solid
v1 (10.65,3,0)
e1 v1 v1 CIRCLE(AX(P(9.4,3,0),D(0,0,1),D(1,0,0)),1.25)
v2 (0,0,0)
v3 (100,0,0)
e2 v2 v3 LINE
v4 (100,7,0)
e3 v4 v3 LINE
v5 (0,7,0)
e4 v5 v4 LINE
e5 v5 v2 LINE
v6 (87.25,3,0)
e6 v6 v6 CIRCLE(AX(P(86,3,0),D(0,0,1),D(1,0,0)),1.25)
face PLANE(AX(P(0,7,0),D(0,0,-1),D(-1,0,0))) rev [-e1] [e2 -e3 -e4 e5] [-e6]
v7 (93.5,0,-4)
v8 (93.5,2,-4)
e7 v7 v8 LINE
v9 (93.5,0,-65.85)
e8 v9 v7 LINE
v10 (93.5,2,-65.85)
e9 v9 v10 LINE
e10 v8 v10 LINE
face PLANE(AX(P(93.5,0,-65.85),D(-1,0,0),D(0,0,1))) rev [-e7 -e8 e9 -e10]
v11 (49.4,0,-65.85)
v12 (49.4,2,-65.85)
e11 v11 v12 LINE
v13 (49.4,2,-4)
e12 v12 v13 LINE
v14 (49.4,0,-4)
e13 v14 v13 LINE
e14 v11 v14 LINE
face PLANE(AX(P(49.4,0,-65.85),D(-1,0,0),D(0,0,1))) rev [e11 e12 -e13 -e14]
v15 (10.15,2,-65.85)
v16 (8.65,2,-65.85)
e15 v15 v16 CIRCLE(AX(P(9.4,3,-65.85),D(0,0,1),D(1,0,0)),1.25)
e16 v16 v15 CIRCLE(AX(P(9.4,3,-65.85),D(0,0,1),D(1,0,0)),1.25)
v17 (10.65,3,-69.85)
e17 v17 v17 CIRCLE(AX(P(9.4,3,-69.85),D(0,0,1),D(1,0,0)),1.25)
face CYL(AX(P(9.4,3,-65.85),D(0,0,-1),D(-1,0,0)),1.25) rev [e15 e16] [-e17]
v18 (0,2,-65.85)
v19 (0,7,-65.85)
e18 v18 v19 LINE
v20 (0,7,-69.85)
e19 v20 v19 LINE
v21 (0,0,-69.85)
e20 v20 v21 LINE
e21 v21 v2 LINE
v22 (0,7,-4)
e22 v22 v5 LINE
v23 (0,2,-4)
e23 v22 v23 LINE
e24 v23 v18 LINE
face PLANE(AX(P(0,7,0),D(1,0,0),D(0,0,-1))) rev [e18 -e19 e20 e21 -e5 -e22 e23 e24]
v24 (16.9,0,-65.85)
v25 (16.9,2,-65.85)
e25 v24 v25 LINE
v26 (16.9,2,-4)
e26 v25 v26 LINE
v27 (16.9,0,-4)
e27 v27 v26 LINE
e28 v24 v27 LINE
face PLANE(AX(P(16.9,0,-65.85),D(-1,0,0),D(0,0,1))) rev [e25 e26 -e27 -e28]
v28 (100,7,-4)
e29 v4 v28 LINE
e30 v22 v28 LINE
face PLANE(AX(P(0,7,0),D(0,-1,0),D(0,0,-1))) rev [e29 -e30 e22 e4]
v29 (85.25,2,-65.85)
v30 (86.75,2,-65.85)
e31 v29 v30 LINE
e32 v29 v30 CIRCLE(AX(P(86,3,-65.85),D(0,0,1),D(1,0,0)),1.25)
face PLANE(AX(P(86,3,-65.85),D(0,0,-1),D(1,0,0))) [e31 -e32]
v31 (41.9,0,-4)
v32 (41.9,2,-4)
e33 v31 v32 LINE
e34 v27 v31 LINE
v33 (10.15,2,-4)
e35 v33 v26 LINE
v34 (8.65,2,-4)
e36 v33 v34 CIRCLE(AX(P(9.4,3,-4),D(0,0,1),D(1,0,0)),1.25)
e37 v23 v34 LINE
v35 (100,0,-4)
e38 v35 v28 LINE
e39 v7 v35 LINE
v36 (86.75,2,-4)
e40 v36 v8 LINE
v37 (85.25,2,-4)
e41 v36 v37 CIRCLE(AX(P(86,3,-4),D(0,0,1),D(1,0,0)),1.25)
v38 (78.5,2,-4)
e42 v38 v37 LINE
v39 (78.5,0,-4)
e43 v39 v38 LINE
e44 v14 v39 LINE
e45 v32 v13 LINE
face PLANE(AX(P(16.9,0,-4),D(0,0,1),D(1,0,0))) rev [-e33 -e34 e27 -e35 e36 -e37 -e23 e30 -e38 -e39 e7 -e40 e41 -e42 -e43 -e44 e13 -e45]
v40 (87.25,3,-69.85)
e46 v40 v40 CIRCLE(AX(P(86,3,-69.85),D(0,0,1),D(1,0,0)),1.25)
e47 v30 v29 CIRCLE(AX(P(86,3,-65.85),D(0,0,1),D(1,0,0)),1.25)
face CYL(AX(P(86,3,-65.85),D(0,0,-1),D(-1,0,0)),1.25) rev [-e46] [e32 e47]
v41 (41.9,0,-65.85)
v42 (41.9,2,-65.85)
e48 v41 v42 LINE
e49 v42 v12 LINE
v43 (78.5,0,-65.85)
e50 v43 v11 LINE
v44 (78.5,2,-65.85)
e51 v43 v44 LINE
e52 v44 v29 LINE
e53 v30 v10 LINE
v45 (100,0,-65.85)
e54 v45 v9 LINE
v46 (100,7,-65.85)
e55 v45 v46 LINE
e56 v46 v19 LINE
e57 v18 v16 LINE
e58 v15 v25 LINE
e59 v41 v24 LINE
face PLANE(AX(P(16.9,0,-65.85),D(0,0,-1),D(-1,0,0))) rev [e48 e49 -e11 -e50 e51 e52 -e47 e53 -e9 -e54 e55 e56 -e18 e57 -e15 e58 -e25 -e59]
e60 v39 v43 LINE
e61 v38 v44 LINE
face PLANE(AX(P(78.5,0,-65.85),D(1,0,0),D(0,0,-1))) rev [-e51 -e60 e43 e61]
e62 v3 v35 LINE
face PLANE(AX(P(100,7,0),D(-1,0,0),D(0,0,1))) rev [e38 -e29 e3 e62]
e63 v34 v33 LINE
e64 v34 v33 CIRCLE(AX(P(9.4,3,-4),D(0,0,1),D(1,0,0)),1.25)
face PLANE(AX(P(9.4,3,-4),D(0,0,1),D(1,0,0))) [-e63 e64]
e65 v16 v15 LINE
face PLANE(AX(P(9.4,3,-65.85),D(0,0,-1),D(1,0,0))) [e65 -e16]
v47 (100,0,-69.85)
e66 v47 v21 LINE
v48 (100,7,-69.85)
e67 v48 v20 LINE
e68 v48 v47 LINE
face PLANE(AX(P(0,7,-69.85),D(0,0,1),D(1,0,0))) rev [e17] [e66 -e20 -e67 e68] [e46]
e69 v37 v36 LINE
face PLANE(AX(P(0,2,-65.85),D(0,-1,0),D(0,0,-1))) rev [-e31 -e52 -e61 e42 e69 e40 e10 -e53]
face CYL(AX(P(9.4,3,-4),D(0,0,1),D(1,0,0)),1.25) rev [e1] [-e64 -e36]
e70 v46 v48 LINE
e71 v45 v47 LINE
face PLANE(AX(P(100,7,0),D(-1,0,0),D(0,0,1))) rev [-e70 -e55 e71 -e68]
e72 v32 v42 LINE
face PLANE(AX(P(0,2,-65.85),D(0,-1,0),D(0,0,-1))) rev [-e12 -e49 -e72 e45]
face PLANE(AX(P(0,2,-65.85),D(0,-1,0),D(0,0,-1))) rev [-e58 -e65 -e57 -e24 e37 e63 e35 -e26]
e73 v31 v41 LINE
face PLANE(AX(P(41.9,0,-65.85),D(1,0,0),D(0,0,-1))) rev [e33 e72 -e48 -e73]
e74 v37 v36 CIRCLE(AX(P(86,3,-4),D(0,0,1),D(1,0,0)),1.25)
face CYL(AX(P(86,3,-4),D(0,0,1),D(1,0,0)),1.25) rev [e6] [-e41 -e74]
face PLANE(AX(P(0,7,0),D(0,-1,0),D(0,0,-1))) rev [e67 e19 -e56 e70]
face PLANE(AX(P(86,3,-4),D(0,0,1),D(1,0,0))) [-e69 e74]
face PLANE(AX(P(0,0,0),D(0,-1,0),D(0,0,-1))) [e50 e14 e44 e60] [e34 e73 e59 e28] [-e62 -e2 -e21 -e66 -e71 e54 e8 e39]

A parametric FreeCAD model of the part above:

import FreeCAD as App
import Part
import Sketcher
from FreeCAD import Vector
Q = App.Units.Quantity

doc = App.newDocument("Part")
params = doc.addObject("Spreadsheet::Sheet", "Params")
for row, (alias, value) in enumerate([
    ("sketch1_width", "100 mm"),
    ("sketch1_height", "69.85 mm"),
    ("pad1_length", "7 mm"),
    ("sketch2_diameter", "2.5 mm"),
    ("pocket1_length", "4 mm"),
    ("sketch3_width", "25 mm"),
    ("sketch3_width2", "29.1 mm"),
    ("sketch3_width3", "6.5 mm"),
    ("sketch3_height", "61.85 mm"),
    ("sketch4_width", "5 mm"),
    ("sketch4_height", "61.85 mm"),
], start=1):
    params.set(f"A{row}", alias)
    params.set(f"B{row}", "=" + value)
    params.setAlias(f"B{row}", alias)

body = doc.addObject("PartDesign::Body", "Body")

# Sketch on XZ plane
sketch1 = body.newObject("Sketcher::SketchObject", "Sketch")
sketch1.AttachmentSupport = (doc.getObject("XZ_Plane"), [""])
sketch1.MapMode = "FlatFace"
sketch1.addGeometry(Part.LineSegment(Vector(0, -69.85, 0), Vector(0, 0, 0)), False)
sketch1.addGeometry(Part.LineSegment(Vector(0, 0, 0), Vector(100, 0, 0)), False)
sketch1.addGeometry(Part.LineSegment(Vector(100, 0, 0), Vector(100, -69.85, 0)), False)
sketch1.addGeometry(Part.LineSegment(Vector(100, -69.85, 0), Vector(0, -69.85, 0)), False)
sketch1.addConstraint(Sketcher.Constraint("Coincident", 0, 2, 1, 1))
sketch1.addConstraint(Sketcher.Constraint("Coincident", 1, 2, 2, 1))
sketch1.addConstraint(Sketcher.Constraint("Coincident", 2, 2, 3, 1))
sketch1.addConstraint(Sketcher.Constraint("Coincident", 3, 2, 0, 1))
sketch1.addConstraint(Sketcher.Constraint("Vertical", 0))
sketch1.addConstraint(Sketcher.Constraint("Horizontal", 1))
sketch1.addConstraint(Sketcher.Constraint("Vertical", 2))
sketch1.addConstraint(Sketcher.Constraint("Horizontal", 3))
sketch1.addConstraint(Sketcher.Constraint("Coincident", 0, 2, -1, 1))
sketch1.addConstraint(Sketcher.Constraint("DistanceX", 1, 1, 1, 2, Q("100 mm")))
sketch1.addConstraint(Sketcher.Constraint("DistanceY", 0, 1, 0, 2, Q("69.85 mm")))
sketch1.setExpression("Constraints[9]", "Params.sketch1_width")
sketch1.setExpression("Constraints[10]", "Params.sketch1_height")
pad1 = body.newObject("PartDesign::Pad", "Pad")
pad1.Profile = sketch1
pad1.setExpression("Length", "Params.pad1_length")
pad1.Reversed = True

# Sketch on XY plane
sketch2 = body.newObject("Sketcher::SketchObject", "Sketch001")
sketch2.AttachmentSupport = (doc.getObject("XY_Plane"), [""])
sketch2.MapMode = "FlatFace"
sketch2.addGeometry(Part.Circle(Vector(86, 3, 0), Vector(0, 0, 1), 1.25), False)
sketch2.addGeometry(Part.Circle(Vector(9.4, 3, 0), Vector(0, 0, 1), 1.25), False)
sketch2.addConstraint(Sketcher.Constraint("Equal", 0, 1))
sketch2.addConstraint(Sketcher.Constraint("Horizontal", 0, 3, 1, 3))
sketch2.addConstraint(Sketcher.Constraint("Diameter", 0, Q("2.5 mm")))
sketch2.addConstraint(Sketcher.Constraint("DistanceX", -1, 1, 0, 3, Q("86 mm")))
sketch2.addConstraint(Sketcher.Constraint("DistanceY", -1, 1, 0, 3, Q("3 mm")))
sketch2.addConstraint(Sketcher.Constraint("DistanceX", -1, 1, 1, 3, Q("9.4 mm")))
sketch2.setExpression("Constraints[2]", "Params.sketch2_diameter")
pocket1 = body.newObject("PartDesign::Pocket", "Pocket")
pocket1.Profile = sketch2
pocket1.setExpression("Length", "Params.pocket1_length")

# Sketch on XZ plane
sketch3 = body.newObject("Sketcher::SketchObject", "Sketch002")
sketch3.AttachmentSupport = (doc.getObject("XZ_Plane"), [""])
sketch3.MapMode = "FlatFace"
sketch3.AttachmentOffset = App.Placement(Vector(0, 0, -7), App.Rotation())
sketch3.addGeometry(Part.LineSegment(Vector(16.9, -65.85, 0), Vector(16.9, -4, 0)), False)
sketch3.addGeometry(Part.LineSegment(Vector(16.9, -4, 0), Vector(41.9, -4, 0)), False)
sketch3.addGeometry(Part.LineSegment(Vector(41.9, -4, 0), Vector(41.9, -65.85, 0)), False)
sketch3.addGeometry(Part.LineSegment(Vector(41.9, -65.85, 0), Vector(16.9, -65.85, 0)), False)
sketch3.addGeometry(Part.LineSegment(Vector(49.4, -65.85, 0), Vector(49.4, -4, 0)), False)
sketch3.addGeometry(Part.LineSegment(Vector(49.4, -4, 0), Vector(78.5, -4, 0)), False)
sketch3.addGeometry(Part.LineSegment(Vector(78.5, -4, 0), Vector(78.5, -65.85, 0)), False)
sketch3.addGeometry(Part.LineSegment(Vector(78.5, -65.85, 0), Vector(49.4, -65.85, 0)), False)
sketch3.addGeometry(Part.LineSegment(Vector(93.5, -65.85, 0), Vector(93.5, -4, 0)), False)
sketch3.addGeometry(Part.LineSegment(Vector(93.5, -4, 0), Vector(100, -4, 0)), False)
sketch3.addGeometry(Part.LineSegment(Vector(100, -4, 0), Vector(100, -65.85, 0)), False)
sketch3.addGeometry(Part.LineSegment(Vector(100, -65.85, 0), Vector(93.5, -65.85, 0)), False)
sketch3.addConstraint(Sketcher.Constraint("Coincident", 0, 2, 1, 1))
sketch3.addConstraint(Sketcher.Constraint("Coincident", 1, 2, 2, 1))
sketch3.addConstraint(Sketcher.Constraint("Coincident", 2, 2, 3, 1))
sketch3.addConstraint(Sketcher.Constraint("Coincident", 3, 2, 0, 1))
sketch3.addConstraint(Sketcher.Constraint("Coincident", 4, 2, 5, 1))
sketch3.addConstraint(Sketcher.Constraint("Coincident", 5, 2, 6, 1))
sketch3.addConstraint(Sketcher.Constraint("Coincident", 6, 2, 7, 1))
sketch3.addConstraint(Sketcher.Constraint("Coincident", 7, 2, 4, 1))
sketch3.addConstraint(Sketcher.Constraint("Coincident", 8, 2, 9, 1))
sketch3.addConstraint(Sketcher.Constraint("Coincident", 9, 2, 10, 1))
sketch3.addConstraint(Sketcher.Constraint("Coincident", 10, 2, 11, 1))
sketch3.addConstraint(Sketcher.Constraint("Coincident", 11, 2, 8, 1))
sketch3.addConstraint(Sketcher.Constraint("Vertical", 0))
sketch3.addConstraint(Sketcher.Constraint("Horizontal", 1))
sketch3.addConstraint(Sketcher.Constraint("Vertical", 2))
sketch3.addConstraint(Sketcher.Constraint("Horizontal", 3))
sketch3.addConstraint(Sketcher.Constraint("Vertical", 4))
sketch3.addConstraint(Sketcher.Constraint("Horizontal", 5))
sketch3.addConstraint(Sketcher.Constraint("Vertical", 6))
sketch3.addConstraint(Sketcher.Constraint("Horizontal", 7))
sketch3.addConstraint(Sketcher.Constraint("Vertical", 8))
sketch3.addConstraint(Sketcher.Constraint("Horizontal", 9))
sketch3.addConstraint(Sketcher.Constraint("Vertical", 10))
sketch3.addConstraint(Sketcher.Constraint("Horizontal", 11))
sketch3.addConstraint(Sketcher.Constraint("Horizontal", 1, 2, 4, 2))
sketch3.addConstraint(Sketcher.Constraint("Horizontal", 3, 2, 6, 2))
sketch3.addConstraint(Sketcher.Constraint("Horizontal", 5, 2, 8, 2))
sketch3.addConstraint(Sketcher.Constraint("Horizontal", 7, 2, 10, 2))
sketch3.addConstraint(Sketcher.Constraint("DistanceX", 1, 1, 1, 2, Q("25 mm")))
sketch3.addConstraint(Sketcher.Constraint("DistanceX", 5, 1, 5, 2, Q("29.1 mm")))
sketch3.addConstraint(Sketcher.Constraint("DistanceX", 9, 1, 9, 2, Q("6.5 mm")))
sketch3.addConstraint(Sketcher.Constraint("DistanceY", 0, 2, -1, 1, Q("4 mm")))
sketch3.addConstraint(Sketcher.Constraint("DistanceX", -1, 1, 9, 2, Q("100 mm")))
sketch3.addConstraint(Sketcher.Constraint("DistanceX", 5, 2, 8, 2, Q("15 mm")))
sketch3.addConstraint(Sketcher.Constraint("DistanceY", 0, 1, 0, 2, Q("61.85 mm")))
sketch3.addConstraint(Sketcher.Constraint("DistanceX", -1, 1, 0, 2, Q("16.9 mm")))
sketch3.setExpression("Constraints[28]", "Params.sketch3_width")
sketch3.setExpression("Constraints[29]", "Params.sketch3_width2")
sketch3.setExpression("Constraints[30]", "Params.sketch3_width3")
sketch3.setExpression("Constraints[34]", "Params.sketch3_height")
pocket2 = body.newObject("PartDesign::Pocket", "Pocket001")
pocket2.Profile = sketch3
pocket2.Type = "ThroughAll"
pocket2.Reversed = True

# Sketch on YZ plane
sketch4 = body.newObject("Sketcher::SketchObject", "Sketch003")
sketch4.AttachmentSupport = (doc.getObject("YZ_Plane"), [""])
sketch4.MapMode = "FlatFace"
sketch4.AttachmentOffset = App.Placement(Vector(0, 0, 93.5), App.Rotation())
sketch4.addGeometry(Part.LineSegment(Vector(7, -4, 0), Vector(2, -4, 0)), False)
sketch4.addGeometry(Part.LineSegment(Vector(2, -4, 0), Vector(2, -65.85, 0)), False)
sketch4.addGeometry(Part.LineSegment(Vector(2, -65.85, 0), Vector(7, -65.85, 0)), False)
sketch4.addGeometry(Part.LineSegment(Vector(7, -65.85, 0), Vector(7, -4, 0)), False)
sketch4.addConstraint(Sketcher.Constraint("Coincident", 0, 2, 1, 1))
sketch4.addConstraint(Sketcher.Constraint("Coincident", 1, 2, 2, 1))
sketch4.addConstraint(Sketcher.Constraint("Coincident", 2, 2, 3, 1))
sketch4.addConstraint(Sketcher.Constraint("Coincident", 3, 2, 0, 1))
sketch4.addConstraint(Sketcher.Constraint("Horizontal", 0))
sketch4.addConstraint(Sketcher.Constraint("Vertical", 1))
sketch4.addConstraint(Sketcher.Constraint("Horizontal", 2))
sketch4.addConstraint(Sketcher.Constraint("Vertical", 3))
sketch4.addConstraint(Sketcher.Constraint("DistanceX", 0, 2, 0, 1, Q("5 mm")))
sketch4.addConstraint(Sketcher.Constraint("DistanceX", -1, 1, 0, 2, Q("2 mm")))
sketch4.addConstraint(Sketcher.Constraint("DistanceY", 0, 2, -1, 1, Q("4 mm")))
sketch4.addConstraint(Sketcher.Constraint("DistanceY", 1, 2, 1, 1, Q("61.85 mm")))
sketch4.setExpression("Constraints[8]", "Params.sketch4_width")
sketch4.setExpression("Constraints[11]", "Params.sketch4_height")
pocket3 = body.newObject("PartDesign::Pocket", "Pocket002")
pocket3.Profile = sketch4
pocket3.Type = "ThroughAll"
doc.recompute()

datumplane = body.newObject("PartDesign::Plane", "DatumPlane")
datumplane.AttachmentSupport = (doc.getObject("XY_Plane"), [""])
datumplane.MapMode = "FlatFace"
datumplane.AttachmentOffset = App.Placement(Vector(0, 0, -34.925), App.Rotation())
mirrored = body.newObject("PartDesign::Mirrored", "Mirrored")
mirrored.Originals = [pocket1]
mirrored.MirrorPlane = (datumplane, [""])
body.Tip = mirrored

doc.recompute()
